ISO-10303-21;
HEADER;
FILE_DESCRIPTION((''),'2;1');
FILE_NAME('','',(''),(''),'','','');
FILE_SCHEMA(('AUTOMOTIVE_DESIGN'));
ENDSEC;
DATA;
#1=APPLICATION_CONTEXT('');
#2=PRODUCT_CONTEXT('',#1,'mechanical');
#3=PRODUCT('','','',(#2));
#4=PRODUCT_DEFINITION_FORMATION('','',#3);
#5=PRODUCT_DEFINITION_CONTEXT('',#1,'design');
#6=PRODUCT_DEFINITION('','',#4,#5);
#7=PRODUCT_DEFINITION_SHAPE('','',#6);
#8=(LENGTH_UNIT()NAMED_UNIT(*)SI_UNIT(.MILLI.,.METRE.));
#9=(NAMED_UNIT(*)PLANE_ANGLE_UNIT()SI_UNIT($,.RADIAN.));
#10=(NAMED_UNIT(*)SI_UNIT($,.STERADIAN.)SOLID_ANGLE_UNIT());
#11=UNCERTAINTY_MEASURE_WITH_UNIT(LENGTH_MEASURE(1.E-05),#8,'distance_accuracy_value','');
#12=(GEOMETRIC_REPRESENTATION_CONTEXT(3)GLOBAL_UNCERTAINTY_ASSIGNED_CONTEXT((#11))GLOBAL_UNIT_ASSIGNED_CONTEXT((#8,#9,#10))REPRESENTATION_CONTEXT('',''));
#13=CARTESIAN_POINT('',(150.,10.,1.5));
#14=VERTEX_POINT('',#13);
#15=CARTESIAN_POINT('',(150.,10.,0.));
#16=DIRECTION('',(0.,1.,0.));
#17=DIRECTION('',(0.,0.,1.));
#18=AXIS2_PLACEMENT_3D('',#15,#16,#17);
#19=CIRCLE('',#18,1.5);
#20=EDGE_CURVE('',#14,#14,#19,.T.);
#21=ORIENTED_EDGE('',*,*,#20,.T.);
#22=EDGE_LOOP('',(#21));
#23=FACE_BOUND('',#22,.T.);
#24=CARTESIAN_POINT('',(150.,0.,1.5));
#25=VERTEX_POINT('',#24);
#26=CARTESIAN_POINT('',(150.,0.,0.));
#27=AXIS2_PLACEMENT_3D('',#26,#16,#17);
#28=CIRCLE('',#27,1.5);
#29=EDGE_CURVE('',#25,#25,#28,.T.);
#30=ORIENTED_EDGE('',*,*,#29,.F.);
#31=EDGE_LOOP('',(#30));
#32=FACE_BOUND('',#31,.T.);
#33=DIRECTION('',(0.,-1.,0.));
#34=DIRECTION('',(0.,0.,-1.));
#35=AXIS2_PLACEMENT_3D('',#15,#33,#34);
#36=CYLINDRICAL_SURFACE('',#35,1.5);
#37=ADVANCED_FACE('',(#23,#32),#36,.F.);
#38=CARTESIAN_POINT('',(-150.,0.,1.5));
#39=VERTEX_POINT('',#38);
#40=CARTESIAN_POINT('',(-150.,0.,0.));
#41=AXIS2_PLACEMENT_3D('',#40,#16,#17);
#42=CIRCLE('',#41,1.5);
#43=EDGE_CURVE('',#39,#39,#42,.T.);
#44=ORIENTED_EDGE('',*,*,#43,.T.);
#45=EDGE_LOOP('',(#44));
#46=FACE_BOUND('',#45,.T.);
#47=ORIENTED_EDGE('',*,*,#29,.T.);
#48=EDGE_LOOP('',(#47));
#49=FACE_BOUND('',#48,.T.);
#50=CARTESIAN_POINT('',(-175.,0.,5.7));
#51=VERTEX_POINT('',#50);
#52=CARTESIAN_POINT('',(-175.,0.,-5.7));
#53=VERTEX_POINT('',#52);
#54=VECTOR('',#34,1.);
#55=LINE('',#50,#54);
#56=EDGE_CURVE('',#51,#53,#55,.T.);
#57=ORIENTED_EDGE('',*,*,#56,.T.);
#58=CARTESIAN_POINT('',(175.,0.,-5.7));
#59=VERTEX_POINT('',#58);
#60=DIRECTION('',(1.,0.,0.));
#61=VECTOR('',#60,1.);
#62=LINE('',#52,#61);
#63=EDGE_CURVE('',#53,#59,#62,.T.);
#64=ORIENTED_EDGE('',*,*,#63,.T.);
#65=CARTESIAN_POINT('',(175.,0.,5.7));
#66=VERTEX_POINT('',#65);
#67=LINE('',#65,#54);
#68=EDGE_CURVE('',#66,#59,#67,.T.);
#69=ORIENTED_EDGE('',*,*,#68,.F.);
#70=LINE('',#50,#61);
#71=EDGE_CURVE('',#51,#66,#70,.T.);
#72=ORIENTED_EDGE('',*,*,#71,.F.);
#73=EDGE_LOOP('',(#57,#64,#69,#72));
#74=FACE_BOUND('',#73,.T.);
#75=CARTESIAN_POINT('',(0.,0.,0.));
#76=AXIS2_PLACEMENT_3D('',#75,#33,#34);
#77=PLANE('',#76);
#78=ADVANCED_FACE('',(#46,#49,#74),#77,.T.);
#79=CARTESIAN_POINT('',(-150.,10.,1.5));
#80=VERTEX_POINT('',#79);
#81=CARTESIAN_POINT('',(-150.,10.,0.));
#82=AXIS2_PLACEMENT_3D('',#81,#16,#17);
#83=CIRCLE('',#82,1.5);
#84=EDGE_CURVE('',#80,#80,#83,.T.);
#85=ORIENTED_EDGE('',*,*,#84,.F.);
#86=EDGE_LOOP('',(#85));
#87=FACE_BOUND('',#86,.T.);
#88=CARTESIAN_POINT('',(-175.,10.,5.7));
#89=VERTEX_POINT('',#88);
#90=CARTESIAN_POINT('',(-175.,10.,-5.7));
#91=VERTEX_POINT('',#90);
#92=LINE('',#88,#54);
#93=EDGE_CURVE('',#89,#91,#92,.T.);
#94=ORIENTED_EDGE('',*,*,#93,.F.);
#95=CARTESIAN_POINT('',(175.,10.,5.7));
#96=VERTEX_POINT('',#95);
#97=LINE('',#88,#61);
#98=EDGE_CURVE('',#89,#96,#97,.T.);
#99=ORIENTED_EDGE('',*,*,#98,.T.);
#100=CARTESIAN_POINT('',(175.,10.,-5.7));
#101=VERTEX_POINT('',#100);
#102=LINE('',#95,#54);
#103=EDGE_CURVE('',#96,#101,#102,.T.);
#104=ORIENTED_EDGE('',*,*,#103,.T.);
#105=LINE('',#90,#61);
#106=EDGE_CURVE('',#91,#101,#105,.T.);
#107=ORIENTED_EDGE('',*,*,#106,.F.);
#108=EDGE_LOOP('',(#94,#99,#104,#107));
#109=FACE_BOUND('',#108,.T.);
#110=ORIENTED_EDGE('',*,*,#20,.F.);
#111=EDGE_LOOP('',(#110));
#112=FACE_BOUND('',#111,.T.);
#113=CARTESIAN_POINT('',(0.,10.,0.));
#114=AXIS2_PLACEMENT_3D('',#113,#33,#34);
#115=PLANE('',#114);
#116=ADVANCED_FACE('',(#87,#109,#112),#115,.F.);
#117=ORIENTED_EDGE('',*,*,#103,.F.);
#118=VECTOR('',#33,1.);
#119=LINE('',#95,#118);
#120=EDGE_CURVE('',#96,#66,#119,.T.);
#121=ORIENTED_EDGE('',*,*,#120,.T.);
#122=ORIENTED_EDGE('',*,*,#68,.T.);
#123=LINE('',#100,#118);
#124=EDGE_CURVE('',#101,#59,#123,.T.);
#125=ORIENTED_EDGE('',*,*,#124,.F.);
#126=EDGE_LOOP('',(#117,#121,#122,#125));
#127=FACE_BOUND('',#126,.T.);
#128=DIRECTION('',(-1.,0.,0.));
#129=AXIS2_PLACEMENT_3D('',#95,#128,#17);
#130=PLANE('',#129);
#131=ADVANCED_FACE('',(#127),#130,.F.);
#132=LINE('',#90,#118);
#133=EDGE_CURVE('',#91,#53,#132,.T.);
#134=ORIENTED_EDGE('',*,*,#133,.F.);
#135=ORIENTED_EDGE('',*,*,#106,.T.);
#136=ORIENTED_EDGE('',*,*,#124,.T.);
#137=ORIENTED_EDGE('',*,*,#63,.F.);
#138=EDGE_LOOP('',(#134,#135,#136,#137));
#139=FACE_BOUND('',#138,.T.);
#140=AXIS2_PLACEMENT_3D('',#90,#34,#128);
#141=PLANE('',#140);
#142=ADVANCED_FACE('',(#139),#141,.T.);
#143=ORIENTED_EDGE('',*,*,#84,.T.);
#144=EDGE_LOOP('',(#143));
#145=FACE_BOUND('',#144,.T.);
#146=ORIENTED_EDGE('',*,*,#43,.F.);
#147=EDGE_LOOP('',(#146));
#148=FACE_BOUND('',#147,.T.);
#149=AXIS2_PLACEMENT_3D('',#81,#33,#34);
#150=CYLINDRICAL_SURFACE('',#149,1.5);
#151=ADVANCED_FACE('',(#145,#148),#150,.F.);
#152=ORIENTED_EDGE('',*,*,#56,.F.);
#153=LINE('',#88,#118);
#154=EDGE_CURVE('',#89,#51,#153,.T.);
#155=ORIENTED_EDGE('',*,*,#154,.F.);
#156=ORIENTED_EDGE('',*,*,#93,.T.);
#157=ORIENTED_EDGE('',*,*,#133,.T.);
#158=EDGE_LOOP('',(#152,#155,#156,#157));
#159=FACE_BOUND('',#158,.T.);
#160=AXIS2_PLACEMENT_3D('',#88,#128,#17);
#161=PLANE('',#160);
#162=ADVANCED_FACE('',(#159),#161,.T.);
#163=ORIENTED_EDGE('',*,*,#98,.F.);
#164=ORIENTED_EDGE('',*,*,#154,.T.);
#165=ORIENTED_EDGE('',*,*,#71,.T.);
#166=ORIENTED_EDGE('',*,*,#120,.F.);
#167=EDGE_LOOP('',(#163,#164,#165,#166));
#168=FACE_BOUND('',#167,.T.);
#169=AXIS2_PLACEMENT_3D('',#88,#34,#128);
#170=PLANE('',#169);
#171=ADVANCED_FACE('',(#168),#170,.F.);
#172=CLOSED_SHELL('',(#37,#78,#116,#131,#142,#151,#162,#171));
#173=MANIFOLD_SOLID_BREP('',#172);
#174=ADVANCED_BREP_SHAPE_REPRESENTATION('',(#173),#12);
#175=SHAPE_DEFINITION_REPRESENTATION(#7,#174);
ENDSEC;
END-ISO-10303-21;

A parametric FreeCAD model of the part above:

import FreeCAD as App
import Part
import Sketcher
Q = App.Units.Quantity


def add_polygon(sketch, points):
    """Adds a closed chain of lines whose ends are joined by coincident constraints."""
    first, n = sketch.GeometryCount, len(points)
    for a, b in zip(points, points[1:] + points[:1]):
        sketch.addGeometry(Part.LineSegment(App.Vector(*a, 0), App.Vector(*b, 0)), False)
    for i in range(n):
        sketch.addConstraint(Sketcher.Constraint("Coincident", first + i, 2, first + (i + 1) % n, 1))

doc = App.newDocument("Part")
body = doc.addObject("PartDesign::Body", "Body")

# Sketch on XZ plane
sketch1 = body.newObject("Sketcher::SketchObject", "Sketch")
sketch1.AttachmentSupport = (doc.getObject("XZ_Plane"), [""])
sketch1.MapMode = "FlatFace"
add_polygon(sketch1, [(-175, -5.7), (-175, 5.7), (175, 5.7), (175, -5.7)])  # lines 0-3
sketch1.addGeometry(Part.Circle(App.Vector(-150, 0, 0), App.Vector(0, 0, 1), 1.5), False)  # 4
sketch1.addGeometry(Part.Circle(App.Vector(150, 0, 0), App.Vector(0, 0, 1), 1.5), False)  # 5
sketch1.addConstraint(Sketcher.Constraint("Vertical", 0))
sketch1.addConstraint(Sketcher.Constraint("Horizontal", 1))
sketch1.addConstraint(Sketcher.Constraint("Vertical", 2))
sketch1.addConstraint(Sketcher.Constraint("Horizontal", 3))
sketch1.addConstraint(Sketcher.Constraint("Equal", 4, 5))
sketch1.addConstraint(Sketcher.Constraint("Symmetric", 4, 3, 5, 3, -1, 1))
sketch1.addConstraint(Sketcher.Constraint("Symmetric", 0, 2, 2, 2, -1, 1))
sketch1.addConstraint(Sketcher.Constraint("PointOnObject", 4, 3, -1))
sketch1.addConstraint(Sketcher.Constraint("Diameter", 4, Q("3 mm")))
sketch1.addConstraint(Sketcher.Constraint("DistanceX", 1, 1, 1, 2, Q("350 mm")))
sketch1.addConstraint(Sketcher.Constraint("DistanceY", 0, 1, 0, 2, Q("11.4 mm")))
sketch1.addConstraint(Sketcher.Constraint("DistanceX", 4, 3, -1, 1, Q("150 mm")))
pad1 = body.newObject("PartDesign::Pad", "Pad")
pad1.Profile = sketch1
pad1.Length = 10
pad1.Reversed = True

doc.recompute()
